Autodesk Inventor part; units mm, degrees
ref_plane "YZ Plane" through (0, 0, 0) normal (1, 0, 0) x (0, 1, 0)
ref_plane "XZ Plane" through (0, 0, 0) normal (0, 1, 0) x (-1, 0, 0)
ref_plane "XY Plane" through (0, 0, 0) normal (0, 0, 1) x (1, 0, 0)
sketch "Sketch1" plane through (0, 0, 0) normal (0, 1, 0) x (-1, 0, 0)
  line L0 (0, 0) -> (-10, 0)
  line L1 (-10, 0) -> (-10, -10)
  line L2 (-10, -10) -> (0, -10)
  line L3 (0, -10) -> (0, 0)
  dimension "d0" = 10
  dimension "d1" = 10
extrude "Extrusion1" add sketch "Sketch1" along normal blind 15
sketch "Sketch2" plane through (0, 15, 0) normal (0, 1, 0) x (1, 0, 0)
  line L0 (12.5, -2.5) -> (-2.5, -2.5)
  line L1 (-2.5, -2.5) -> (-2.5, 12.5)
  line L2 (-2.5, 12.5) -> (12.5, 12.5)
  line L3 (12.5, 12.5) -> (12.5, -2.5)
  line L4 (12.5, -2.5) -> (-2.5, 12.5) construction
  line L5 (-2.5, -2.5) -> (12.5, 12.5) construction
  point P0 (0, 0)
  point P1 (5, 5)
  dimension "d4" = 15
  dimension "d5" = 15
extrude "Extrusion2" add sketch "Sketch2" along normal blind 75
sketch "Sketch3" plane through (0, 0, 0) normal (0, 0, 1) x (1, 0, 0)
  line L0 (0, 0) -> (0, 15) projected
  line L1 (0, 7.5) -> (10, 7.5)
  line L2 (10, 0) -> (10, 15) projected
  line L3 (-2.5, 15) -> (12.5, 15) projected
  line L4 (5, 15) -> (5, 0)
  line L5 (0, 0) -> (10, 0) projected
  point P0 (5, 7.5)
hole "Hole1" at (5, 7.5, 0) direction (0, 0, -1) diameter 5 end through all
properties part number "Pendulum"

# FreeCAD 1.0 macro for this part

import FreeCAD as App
import Part
import Sketcher


def add_polygon(sketch, points):
    """Adds a closed chain of lines whose ends are joined by coincident constraints."""
    first, n = sketch.GeometryCount, len(points)
    for a, b in zip(points, points[1:] + points[:1]):
        sketch.addGeometry(Part.LineSegment(App.Vector(*a, 0), App.Vector(*b, 0)), False)
    for i in range(n):
        sketch.addConstraint(Sketcher.Constraint("Coincident", first + i, 2, first + (i + 1) % n, 1))

doc = App.newDocument("Part")
body = doc.addObject("PartDesign::Body", "Body")

# Sketch on XZ plane
sketch1 = body.newObject("Sketcher::SketchObject", "Sketch")
sketch1.AttachmentSupport = (doc.getObject("XZ_Plane"), [""])
sketch1.MapMode = "FlatFace"
add_polygon(sketch1, [(0, -10), (0, 0), (10, 0), (10, -10)])  # lines 0-3
sketch1.addConstraint([
    Sketcher.Constraint("Vertical", 0),
    Sketcher.Constraint("Horizontal", 1),
    Sketcher.Constraint("Vertical", 2),
    Sketcher.Constraint("Horizontal", 3),
    Sketcher.Constraint("Coincident", 0, 2, -1, 1),
    Sketcher.Constraint("Equal", 3, 0),
    Sketcher.Constraint("DistanceX", 1, 1, 1, 2, 10.0),
])
pad1 = body.newObject("PartDesign::Pad", "Pad")
pad1.Profile = sketch1
pad1.Length = 15
pad1.Reversed = True

# Sketch on XZ plane
sketch2 = body.newObject("Sketcher::SketchObject", "Sketch001")
sketch2.AttachmentSupport = (doc.getObject("XZ_Plane"), [""])
sketch2.MapMode = "FlatFace"
sketch2.AttachmentOffset = App.Placement(App.Vector(0, 0, -15), App.Rotation())
add_polygon(sketch2, [(-2, 2), (12, 2), (12, -12), (-2, -12)])  # lines 0-3
sketch2.addConstraint([
    Sketcher.Constraint("Horizontal", 0),
    Sketcher.Constraint("Vertical", 1),
    Sketcher.Constraint("Horizontal", 2),
    Sketcher.Constraint("Vertical", 3),
    Sketcher.Constraint("Equal", 2, 1),
    Sketcher.Constraint("DistanceX", 0, 1, 0, 2, 15.0),
    Sketcher.Constraint("DistanceX", -1, 1, 0, 2, 12.5),
    Sketcher.Constraint("DistanceY", -1, 1, 0, 2, 2.5),
])
pad2 = body.newObject("PartDesign::Pad", "Pad001")
pad2.Profile = sketch2
pad2.Length = 75
pad2.Reversed = True

# Sketch on XY plane
sketch3 = body.newObject("Sketcher::SketchObject", "Sketch002")
sketch3.AttachmentSupport = (doc.getObject("XY_Plane"), [""])
sketch3.MapMode = "FlatFace"
sketch3.addGeometry(Part.Circle(App.Vector(5, 7.5, 0), App.Vector(0, 0, 1), 2.5), False)
sketch3.addConstraint([
    Sketcher.Constraint("Diameter", 0, 5.0),
    Sketcher.Constraint("DistanceX", -1, 1, 0, 3, 5.0),
    Sketcher.Constraint("DistanceY", -1, 1, 0, 3, 7.5),
])
doc.recompute()
hole = body.newObject("PartDesign::Hole", "Hole")
hole.Profile = sketch3
hole.ThreadType = "None"
hole.Diameter = 5
hole.DepthType = "ThroughAll"

doc.recompute()
